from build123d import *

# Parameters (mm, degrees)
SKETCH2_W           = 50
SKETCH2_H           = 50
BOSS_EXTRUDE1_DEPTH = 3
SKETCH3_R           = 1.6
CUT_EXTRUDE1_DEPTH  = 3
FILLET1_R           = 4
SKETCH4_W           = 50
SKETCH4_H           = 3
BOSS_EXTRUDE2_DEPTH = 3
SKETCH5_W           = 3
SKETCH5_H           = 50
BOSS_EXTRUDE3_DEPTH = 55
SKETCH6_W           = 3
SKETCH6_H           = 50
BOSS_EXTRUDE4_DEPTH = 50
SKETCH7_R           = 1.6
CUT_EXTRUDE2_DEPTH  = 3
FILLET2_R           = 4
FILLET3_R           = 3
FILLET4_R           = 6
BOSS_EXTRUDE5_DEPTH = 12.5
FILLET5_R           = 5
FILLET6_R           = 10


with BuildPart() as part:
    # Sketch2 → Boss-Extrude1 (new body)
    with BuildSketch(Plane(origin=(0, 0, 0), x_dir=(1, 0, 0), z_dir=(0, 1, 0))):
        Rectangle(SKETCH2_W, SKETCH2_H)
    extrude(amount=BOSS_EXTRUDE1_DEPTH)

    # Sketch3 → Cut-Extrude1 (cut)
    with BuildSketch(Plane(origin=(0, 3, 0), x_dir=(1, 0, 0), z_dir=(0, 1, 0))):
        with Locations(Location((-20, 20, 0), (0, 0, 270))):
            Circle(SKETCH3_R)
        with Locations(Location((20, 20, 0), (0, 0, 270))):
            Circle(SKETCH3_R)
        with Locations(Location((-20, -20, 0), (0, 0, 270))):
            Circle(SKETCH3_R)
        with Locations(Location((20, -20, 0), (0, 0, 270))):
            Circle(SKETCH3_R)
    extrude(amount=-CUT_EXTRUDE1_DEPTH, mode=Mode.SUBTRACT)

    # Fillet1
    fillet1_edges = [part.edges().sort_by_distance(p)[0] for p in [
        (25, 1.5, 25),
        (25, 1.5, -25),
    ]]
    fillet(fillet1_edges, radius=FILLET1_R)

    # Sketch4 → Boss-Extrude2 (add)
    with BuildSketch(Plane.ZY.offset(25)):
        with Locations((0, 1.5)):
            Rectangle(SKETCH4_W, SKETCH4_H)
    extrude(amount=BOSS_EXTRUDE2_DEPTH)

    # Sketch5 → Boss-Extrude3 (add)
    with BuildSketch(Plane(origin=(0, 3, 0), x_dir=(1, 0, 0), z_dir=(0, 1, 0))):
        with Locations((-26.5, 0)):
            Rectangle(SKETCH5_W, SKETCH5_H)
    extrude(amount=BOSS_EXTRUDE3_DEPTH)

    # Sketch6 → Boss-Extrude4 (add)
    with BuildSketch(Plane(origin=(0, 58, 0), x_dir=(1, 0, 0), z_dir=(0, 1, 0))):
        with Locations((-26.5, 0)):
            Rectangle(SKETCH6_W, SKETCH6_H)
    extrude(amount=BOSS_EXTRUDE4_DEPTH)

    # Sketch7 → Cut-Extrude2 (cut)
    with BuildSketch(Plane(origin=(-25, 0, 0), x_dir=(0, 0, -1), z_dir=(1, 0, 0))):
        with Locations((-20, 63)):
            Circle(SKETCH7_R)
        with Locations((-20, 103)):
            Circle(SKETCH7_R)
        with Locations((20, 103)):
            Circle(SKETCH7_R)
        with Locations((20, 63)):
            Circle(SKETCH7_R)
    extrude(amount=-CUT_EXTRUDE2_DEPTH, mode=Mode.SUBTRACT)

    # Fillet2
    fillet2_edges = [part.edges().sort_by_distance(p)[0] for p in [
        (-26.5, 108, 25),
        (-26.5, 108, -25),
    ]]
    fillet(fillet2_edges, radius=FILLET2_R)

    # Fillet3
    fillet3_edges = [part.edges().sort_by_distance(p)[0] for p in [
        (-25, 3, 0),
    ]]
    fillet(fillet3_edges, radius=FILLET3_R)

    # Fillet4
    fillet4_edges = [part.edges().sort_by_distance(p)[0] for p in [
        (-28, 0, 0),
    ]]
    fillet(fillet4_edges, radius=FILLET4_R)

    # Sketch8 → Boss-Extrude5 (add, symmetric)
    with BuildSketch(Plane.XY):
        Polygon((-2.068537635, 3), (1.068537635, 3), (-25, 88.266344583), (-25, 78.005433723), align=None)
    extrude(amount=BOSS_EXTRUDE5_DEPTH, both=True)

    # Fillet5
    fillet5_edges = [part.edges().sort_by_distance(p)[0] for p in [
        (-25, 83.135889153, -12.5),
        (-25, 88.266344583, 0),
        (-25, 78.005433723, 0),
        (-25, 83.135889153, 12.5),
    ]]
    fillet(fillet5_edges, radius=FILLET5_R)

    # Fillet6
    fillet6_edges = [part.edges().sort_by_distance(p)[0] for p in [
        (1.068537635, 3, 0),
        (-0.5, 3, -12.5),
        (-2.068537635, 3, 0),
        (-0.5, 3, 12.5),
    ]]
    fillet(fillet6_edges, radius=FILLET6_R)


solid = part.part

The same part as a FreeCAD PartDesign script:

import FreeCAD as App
import Part
import Sketcher
Q = App.Units.Quantity


def edges_at(feature, points):
    """Names of the edges that pass closest to the given points."""
    edges = feature.Shape.Edges
    near = lambda p: min(range(len(edges)), key=lambda i: edges[i].distToShape(Part.Vertex(*p))[0])
    return sorted({f"Edge{near(p) + 1}" for p in points})


def add_polygon(sketch, points):
    """Adds a closed chain of lines whose ends are joined by coincident constraints."""
    first, n = sketch.GeometryCount, len(points)
    for a, b in zip(points, points[1:] + points[:1]):
        sketch.addGeometry(Part.LineSegment(App.Vector(*a, 0), App.Vector(*b, 0)), False)
    for i in range(n):
        sketch.addConstraint(Sketcher.Constraint("Coincident", first + i, 2, first + (i + 1) % n, 1))

doc = App.newDocument("Part")
params = doc.addObject("Spreadsheet::Sheet", "Params")
for row, (alias, value) in enumerate([
    ("sketch1_width", "50 mm"),
    ("pad1_length", "3 mm"),
    ("sketch2_diameter", "3.2 mm"),
    ("pocket1_length", "3 mm"),
    ("fillet_radius", "4 mm"),
    ("sketch3_width", "3 mm"),
    ("sketch3_height", "50 mm"),
    ("pad2_length", "3 mm"),
    ("sketch4_width", "3 mm"),
    ("sketch4_height", "50 mm"),
    ("pad3_length", "55 mm"),
    ("sketch5_width", "3 mm"),
    ("sketch5_height", "50 mm"),
    ("pad4_length", "50 mm"),
    ("sketch6_diameter", "3.2 mm"),
    ("pocket2_length", "3 mm"),
    ("fillet2_radius", "4 mm"),
    ("fillet3_radius", "3 mm"),
    ("fillet4_radius", "6 mm"),
    ("pad5_length", "25 mm"),
    ("fillet5_radius", "5 mm"),
    ("fillet6_radius", "10 mm"),
], start=1):
    params.set(f"A{row}", alias)
    params.set(f"B{row}", "=" + value)
    params.setAlias(f"B{row}", alias)

body = doc.addObject("PartDesign::Body", "Body")

sketch1 = body.newObject("Sketcher::SketchObject", "Sketch")
sketch1.AttachmentSupport = (doc.getObject("XZ_Plane"), [""])
sketch1.MapMode = "FlatFace"
add_polygon(sketch1, [(-25, -25), (-25, 25), (25, 25), (25, -25)])
sketch1.addConstraint([
    Sketcher.Constraint("Vertical", 0),
    Sketcher.Constraint("Horizontal", 1),
    Sketcher.Constraint("Vertical", 2),
    Sketcher.Constraint("Horizontal", 3),
    Sketcher.Constraint("Symmetric", 0, 2, 2, 2, -1, 1),
    Sketcher.Constraint("Equal", 3, 0),
    Sketcher.Constraint("DistanceX", 1, 1, 1, 2, 50.0),
])
sketch1.setExpression("Constraints[10]", "Params.sketch1_width")
pad1 = body.newObject("PartDesign::Pad", "Pad")
pad1.Profile = sketch1
pad1.setExpression("Length", "Params.pad1_length")
pad1.Reversed = True

sketch2 = body.newObject("Sketcher::SketchObject", "Sketch001")
sketch2.AttachmentSupport = (doc.getObject("XZ_Plane"), [""])
sketch2.MapMode = "FlatFace"
sketch2.AttachmentOffset = App.Placement(App.Vector(0, 0, -3), App.Rotation())
sketch2.addGeometry([
    Part.Circle(App.Vector(-20, -20, 0), App.Vector(0, 0, 1), 1.6),
    Part.Circle(App.Vector(20, -20, 0), App.Vector(0, 0, 1), 1.6),
    Part.Circle(App.Vector(-20, 20, 0), App.Vector(0, 0, 1), 1.6),
    Part.Circle(App.Vector(20, 20, 0), App.Vector(0, 0, 1), 1.6),
], False)
sketch2.addConstraint([
    Sketcher.Constraint("Equal", 0, 1),
    Sketcher.Constraint("Equal", 1, 2),
    Sketcher.Constraint("Equal", 2, 3),
    Sketcher.Constraint("Symmetric", 1, 3, 2, 3, -1, 1),
    Sketcher.Constraint("Symmetric", 0, 3, 3, 3, -1, 1),
    Sketcher.Constraint("Symmetric", 0, 3, 1, 3, -2),
    Sketcher.Constraint("Diameter", 0, 3.2),
    Sketcher.Constraint("DistanceX", 0, 3, -1, 1, 20.0),
    Sketcher.Constraint("DistanceY", 0, 3, -1, 1, 20.0),
])
sketch2.setExpression("Constraints[6]", "Params.sketch2_diameter")
pocket1 = body.newObject("PartDesign::Pocket", "Pocket")
pocket1.Profile = sketch2
pocket1.setExpression("Length", "Params.pocket1_length")
pocket1.Reversed = True
doc.recompute()

fillet = body.newObject("PartDesign::Fillet", "Fillet")
fillet.Base = (pocket1, edges_at(pocket1, [(25, 1.5, 25), (25, 1.5, -25)]))
fillet.setExpression("Radius", "Params.fillet_radius")

sketch3 = body.newObject("Sketcher::SketchObject", "Sketch002")
sketch3.AttachmentSupport = (doc.getObject("YZ_Plane"), [""])
sketch3.MapMode = "FlatFace"
sketch3.AttachmentOffset = App.Placement(App.Vector(0, 0, -25), App.Rotation())
add_polygon(sketch3, [(3, -25), (0, -25), (0, 25), (3, 25)])
sketch3.addConstraint([
    Sketcher.Constraint("Horizontal", 0),
    Sketcher.Constraint("Vertical", 1),
    Sketcher.Constraint("Horizontal", 2),
    Sketcher.Constraint("Vertical", 3),
    Sketcher.Constraint("Symmetric", 0, 2, 1, 2, -1, 1),
    Sketcher.Constraint("DistanceX", 0, 2, 0, 1, 3.0),
    Sketcher.Constraint("DistanceY", 1, 1, 1, 2, 50.0),
])
sketch3.setExpression("Constraints[9]", "Params.sketch3_width")
sketch3.setExpression("Constraints[10]", "Params.sketch3_height")
pad2 = body.newObject("PartDesign::Pad", "Pad001")
pad2.Profile = sketch3
pad2.setExpression("Length", "Params.pad2_length")
pad2.Reversed = True

sketch4 = body.newObject("Sketcher::SketchObject", "Sketch003")
sketch4.AttachmentSupport = (doc.getObject("XZ_Plane"), [""])
sketch4.MapMode = "FlatFace"
sketch4.AttachmentOffset = App.Placement(App.Vector(0, 0, -3), App.Rotation())
add_polygon(sketch4, [(-28, -25), (-28, 25), (-25, 25), (-25, -25)])
sketch4.addConstraint([
    Sketcher.Constraint("Vertical", 0),
    Sketcher.Constraint("Horizontal", 1),
    Sketcher.Constraint("Vertical", 2),
    Sketcher.Constraint("Horizontal", 3),
    Sketcher.Constraint("DistanceX", 1, 1, 1, 2, 3.0),
    Sketcher.Constraint("DistanceY", 0, 1, 0, 2, 50.0),
    Sketcher.Constraint("DistanceX", 0, 2, -1, 1, 28.0),
    Sketcher.Constraint("DistanceY", -1, 1, 0, 2, 25.0),
])
sketch4.setExpression("Constraints[8]", "Params.sketch4_width")
sketch4.setExpression("Constraints[9]", "Params.sketch4_height")
pad3 = body.newObject("PartDesign::Pad", "Pad002")
pad3.Profile = sketch4
pad3.setExpression("Length", "Params.pad3_length")
pad3.Reversed = True

sketch5 = body.newObject("Sketcher::SketchObject", "Sketch004")
sketch5.AttachmentSupport = (doc.getObject("XZ_Plane"), [""])
sketch5.MapMode = "FlatFace"
sketch5.AttachmentOffset = App.Placement(App.Vector(0, 0, -58), App.Rotation())
add_polygon(sketch5, [(-28, -25), (-28, 25), (-25, 25), (-25, -25)])
sketch5.addConstraint([
    Sketcher.Constraint("Vertical", 0),
    Sketcher.Constraint("Horizontal", 1),
    Sketcher.Constraint("Vertical", 2),
    Sketcher.Constraint("Horizontal", 3),
    Sketcher.Constraint("DistanceX", 1, 1, 1, 2, 3.0),
    Sketcher.Constraint("DistanceY", 0, 1, 0, 2, 50.0),
    Sketcher.Constraint("DistanceX", 0, 2, -1, 1, 28.0),
    Sketcher.Constraint("DistanceY", -1, 1, 0, 2, 25.0),
])
sketch5.setExpression("Constraints[8]", "Params.sketch5_width")
sketch5.setExpression("Constraints[9]", "Params.sketch5_height")
pad4 = body.newObject("PartDesign::Pad", "Pad003")
pad4.Profile = sketch5
pad4.setExpression("Length", "Params.pad4_length")
pad4.Reversed = True

sketch6 = body.newObject("Sketcher::SketchObject", "Sketch005")
sketch6.AttachmentSupport = (doc.getObject("YZ_Plane"), [""])
sketch6.MapMode = "FlatFace"
sketch6.AttachmentOffset = App.Placement(App.Vector(0, 0, -25), App.Rotation())
sketch6.addGeometry([
    Part.Circle(App.Vector(63, 20, 0), App.Vector(0, 0, 1), 1.6),
    Part.Circle(App.Vector(103, 20, 0), App.Vector(0, 0, 1), 1.6),
    Part.Circle(App.Vector(103, -20, 0), App.Vector(0, 0, 1), 1.6),
    Part.Circle(App.Vector(63, -20, 0), App.Vector(0, 0, 1), 1.6),
], False)
sketch6.addConstraint([
    Sketcher.Constraint("Equal", 0, 1),
    Sketcher.Constraint("Equal", 1, 2),
    Sketcher.Constraint("Equal", 2, 3),
    Sketcher.Constraint("Symmetric", 1, 3, 2, 3, -1),
    Sketcher.Constraint("Symmetric", 0, 3, 3, 3, -1),
    Sketcher.Constraint("Horizontal", 0, 3, 1, 3),
    Sketcher.Constraint("Diameter", 0, 3.2),
    Sketcher.Constraint("DistanceX", -1, 1, 0, 3, 63.0),
    Sketcher.Constraint("DistanceY", -1, 1, 0, 3, 20.0),
    Sketcher.Constraint("DistanceX", -1, 1, 1, 3, 103.0),
])
sketch6.setExpression("Constraints[6]", "Params.sketch6_diameter")
pocket2 = body.newObject("PartDesign::Pocket", "Pocket001")
pocket2.Profile = sketch6
pocket2.setExpression("Length", "Params.pocket2_length")
doc.recompute()

fillet2 = body.newObject("PartDesign::Fillet", "Fillet001")
fillet2.Base = (pocket2, edges_at(pocket2, [(-26.5, 108, 25), (-26.5, 108, -25)]))
fillet2.setExpression("Radius", "Params.fillet2_radius")
doc.recompute()

fillet3 = body.newObject("PartDesign::Fillet", "Fillet002")
fillet3.Base = (fillet2, edges_at(fillet2, [(-25, 3, 0)]))
fillet3.setExpression("Radius", "Params.fillet3_radius")
doc.recompute()

fillet4 = body.newObject("PartDesign::Fillet", "Fillet003")
fillet4.Base = (fillet3, edges_at(fillet3, [(-28, 0, 0)]))
fillet4.setExpression("Radius", "Params.fillet4_radius")

sketch7 = body.newObject("Sketcher::SketchObject", "Sketch006")
sketch7.AttachmentSupport = (doc.getObject("XY_Plane"), [""])
sketch7.MapMode = "FlatFace"
add_polygon(sketch7, [(-2.1, 3), (1.1, 3), (-25, 88.3), (-25, 78)])
sketch7.addConstraint([
    Sketcher.Constraint("Horizontal", 0),
    Sketcher.Constraint("Vertical", 2),
    Sketcher.Constraint("Parallel", 1, 3),
    Sketcher.Constraint("Angle", 1, Q("107 deg")),
    Sketcher.Constraint("DistanceY", -1, 1, 0, 2, 3.0),
    Sketcher.Constraint("DistanceX", 1, 2, -1, 1, 25.0),
    Sketcher.Constraint("DistanceY", 2, 2, 2, 1, 10.260911),
    Sketcher.Constraint("Distance", 1, 89.162314),
])
pad5 = body.newObject("PartDesign::Pad", "Pad004")
pad5.Profile = sketch7
pad5.setExpression("Length", "Params.pad5_length")
pad5.Midplane = True
doc.recompute()

fillet5 = body.newObject("PartDesign::Fillet", "Fillet004")
fillet5.Base = (pad5, edges_at(pad5, [
    (-25, 83.136, -12.5),
    (-25, 88.266, 0),
    (-25, 78.005, 0),
    (-25, 83.136, 12.5),
]))
fillet5.setExpression("Radius", "Params.fillet5_radius")
doc.recompute()

fillet6 = body.newObject("PartDesign::Fillet", "Fillet005")
fillet6.Base = (fillet5, edges_at(fillet5, [
    (1.069, 3, 0),
    (-0.5, 3, -12.5),
    (-2.069, 3, 0),
    (-0.5, 3, 12.5),
]))
fillet6.setExpression("Radius", "Params.fillet6_radius")

doc.recompute()
